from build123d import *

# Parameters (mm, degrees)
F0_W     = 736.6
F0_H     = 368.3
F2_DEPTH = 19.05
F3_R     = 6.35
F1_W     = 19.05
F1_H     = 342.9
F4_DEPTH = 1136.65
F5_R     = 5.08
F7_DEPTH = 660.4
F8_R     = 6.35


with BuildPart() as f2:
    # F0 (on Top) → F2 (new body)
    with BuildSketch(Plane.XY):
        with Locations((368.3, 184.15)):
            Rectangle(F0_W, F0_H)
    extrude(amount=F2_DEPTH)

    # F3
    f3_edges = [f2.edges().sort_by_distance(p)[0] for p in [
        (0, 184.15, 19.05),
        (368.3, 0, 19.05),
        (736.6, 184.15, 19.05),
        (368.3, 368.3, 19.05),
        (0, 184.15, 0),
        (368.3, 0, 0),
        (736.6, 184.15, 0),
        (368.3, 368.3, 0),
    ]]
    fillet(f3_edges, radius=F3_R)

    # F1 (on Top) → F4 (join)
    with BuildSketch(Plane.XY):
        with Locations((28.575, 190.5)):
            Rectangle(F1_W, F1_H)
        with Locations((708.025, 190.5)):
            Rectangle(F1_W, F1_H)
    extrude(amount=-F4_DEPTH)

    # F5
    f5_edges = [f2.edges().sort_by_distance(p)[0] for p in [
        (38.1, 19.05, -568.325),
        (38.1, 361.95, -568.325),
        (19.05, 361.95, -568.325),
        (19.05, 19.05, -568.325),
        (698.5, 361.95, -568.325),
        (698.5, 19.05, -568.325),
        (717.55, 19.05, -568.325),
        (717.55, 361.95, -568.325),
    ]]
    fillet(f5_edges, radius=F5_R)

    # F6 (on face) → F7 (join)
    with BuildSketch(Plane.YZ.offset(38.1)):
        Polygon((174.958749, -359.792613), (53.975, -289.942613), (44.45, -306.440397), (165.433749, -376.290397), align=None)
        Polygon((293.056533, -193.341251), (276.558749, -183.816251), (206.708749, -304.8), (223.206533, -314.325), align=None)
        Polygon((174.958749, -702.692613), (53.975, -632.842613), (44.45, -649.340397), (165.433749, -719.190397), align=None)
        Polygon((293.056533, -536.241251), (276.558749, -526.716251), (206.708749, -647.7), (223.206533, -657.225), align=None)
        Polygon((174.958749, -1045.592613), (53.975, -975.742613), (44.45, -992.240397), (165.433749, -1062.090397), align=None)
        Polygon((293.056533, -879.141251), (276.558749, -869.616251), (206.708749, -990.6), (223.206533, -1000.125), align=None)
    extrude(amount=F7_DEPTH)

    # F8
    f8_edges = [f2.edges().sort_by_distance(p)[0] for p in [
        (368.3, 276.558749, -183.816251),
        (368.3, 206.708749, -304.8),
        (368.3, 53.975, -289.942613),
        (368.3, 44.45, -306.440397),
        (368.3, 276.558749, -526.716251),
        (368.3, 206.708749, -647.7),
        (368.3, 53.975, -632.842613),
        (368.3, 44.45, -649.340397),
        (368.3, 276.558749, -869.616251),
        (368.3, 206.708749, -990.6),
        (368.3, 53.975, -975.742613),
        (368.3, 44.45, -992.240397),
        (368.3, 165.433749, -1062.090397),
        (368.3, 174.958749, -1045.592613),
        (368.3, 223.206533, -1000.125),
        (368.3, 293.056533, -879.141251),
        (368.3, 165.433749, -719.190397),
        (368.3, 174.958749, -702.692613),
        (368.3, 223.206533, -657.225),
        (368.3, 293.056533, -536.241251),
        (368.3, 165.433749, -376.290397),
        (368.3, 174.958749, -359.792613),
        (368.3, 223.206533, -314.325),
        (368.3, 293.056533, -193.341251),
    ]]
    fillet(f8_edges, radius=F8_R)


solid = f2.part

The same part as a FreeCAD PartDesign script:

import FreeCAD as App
import Part
import Sketcher
from FreeCAD import Vector
Q = App.Units.Quantity


def edges_at(feature, points):
    """Names of the edges that pass closest to the given points."""
    edges = feature.Shape.Edges
    near = lambda p: min(range(len(edges)), key=lambda i: edges[i].distToShape(Part.Vertex(*p))[0])
    return sorted({f"Edge{near(p) + 1}" for p in points})


def add_polygon(sketch, points):
    """Adds a closed chain of lines whose ends are joined by coincident constraints."""
    first, n = sketch.GeometryCount, len(points)
    for a, b in zip(points, points[1:] + points[:1]):
        sketch.addGeometry(Part.LineSegment(App.Vector(*a, 0), App.Vector(*b, 0)), False)
    for i in range(n):
        sketch.addConstraint(Sketcher.Constraint("Coincident", first + i, 2, first + (i + 1) % n, 1))

doc = App.newDocument("Part")
params = doc.addObject("Spreadsheet::Sheet", "Params")
for row, (alias, value) in enumerate([
    ("sketch1_width", "29 in"),
    ("sketch1_height", "14.5 in"),
    ("pad1_length", "0.75 in"),
    ("fillet_radius", "0.25 in"),
    ("sketch2_height", "13.5 in"),
    ("sketch2_width", "0.75 in"),
    ("pad2_length", "44.75 in"),
    ("fillet2_radius", "0.2 in"),
    ("sketch3_length", "5.5 in"),
    ("sketch3_length2", "0.75 in"),
    ("pad3_length", "26 in"),
    ("fillet3_radius", "0.25 in"),
], start=1):
    params.set(f"A{row}", alias)
    params.set(f"B{row}", "=" + value)
    params.setAlias(f"B{row}", alias)

body = doc.addObject("PartDesign::Body", "Body")

# Sketch on XY plane
sketch1 = body.newObject("Sketcher::SketchObject", "Sketch")
sketch1.AttachmentSupport = (doc.getObject("XY_Plane"), [""])
sketch1.MapMode = "FlatFace"
add_polygon(sketch1, [(0, 368.3), (0, 0), (736.6, 0), (736.6, 368.3)])  # lines 0-3
sketch1.addConstraint(Sketcher.Constraint("Vertical", 0))
sketch1.addConstraint(Sketcher.Constraint("Horizontal", 1))
sketch1.addConstraint(Sketcher.Constraint("Vertical", 2))
sketch1.addConstraint(Sketcher.Constraint("Horizontal", 3))
sketch1.addConstraint(Sketcher.Constraint("Coincident", 0, 2, -1, 1))
sketch1.addConstraint(Sketcher.Constraint("DistanceX", 1, 1, 1, 2, Q("29 in")))
sketch1.addConstraint(Sketcher.Constraint("DistanceY", 0, 2, 0, 1, Q("14.5 in")))
sketch1.setExpression("Constraints[9]", "Params.sketch1_width")
sketch1.setExpression("Constraints[10]", "Params.sketch1_height")
pad1 = body.newObject("PartDesign::Pad", "Pad")
pad1.Profile = sketch1
pad1.setExpression("Length", "Params.pad1_length")
doc.recompute()

fillet = body.newObject("PartDesign::Fillet", "Fillet")
fillet.Base = (pad1, edges_at(pad1, [
    (0, 184.15, 19.05),
    (368.3, 0, 19.05),
    (736.6, 184.15, 19.05),
    (368.3, 368.3, 19.05),
    (0, 184.15, 0),
    (368.3, 0, 0),
    (736.6, 184.15, 0),
    (368.3, 368.3, 0),
]))
fillet.setExpression("Radius", "Params.fillet_radius")

# Sketch on XY plane
sketch2 = body.newObject("Sketcher::SketchObject", "Sketch001")
sketch2.AttachmentSupport = (doc.getObject("XY_Plane"), [""])
sketch2.MapMode = "FlatFace"
add_polygon(sketch2, [(19.05, 361.95), (19.05, 19.05), (38.1, 19.05), (38.1, 361.95)])  # lines 0-3
add_polygon(sketch2, [(698.5, 361.95), (698.5, 19.05), (717.55, 19.05), (717.55, 361.95)])  # lines 4-7
sketch2.addConstraint(Sketcher.Constraint("Vertical", 0))
sketch2.addConstraint(Sketcher.Constraint("Horizontal", 1))
sketch2.addConstraint(Sketcher.Constraint("Vertical", 2))
sketch2.addConstraint(Sketcher.Constraint("Horizontal", 3))
sketch2.addConstraint(Sketcher.Constraint("Vertical", 4))
sketch2.addConstraint(Sketcher.Constraint("Horizontal", 5))
sketch2.addConstraint(Sketcher.Constraint("Vertical", 6))
sketch2.addConstraint(Sketcher.Constraint("Horizontal", 7))
sketch2.addConstraint(Sketcher.Constraint("Horizontal", 1, 2, 4, 2))
sketch2.addConstraint(Sketcher.Constraint("Horizontal", 3, 2, 6, 2))
sketch2.addConstraint(Sketcher.Constraint("Equal", 3, 5))
sketch2.addConstraint(Sketcher.Constraint("DistanceY", 0, 2, 0, 1, Q("13.5 in")))
sketch2.addConstraint(Sketcher.Constraint("DistanceX", 1, 2, 4, 2, Q("26 in")))
sketch2.addConstraint(Sketcher.Constraint("DistanceX", 1, 1, 1, 2, Q("0.75 in")))
sketch2.addConstraint(Sketcher.Constraint("DistanceX", -1, 1, 1, 2, Q("1.5 in")))
sketch2.addConstraint(Sketcher.Constraint("DistanceY", -1, 1, 0, 2, Q("0.75 in")))
sketch2.setExpression("Constraints[19]", "Params.sketch2_height")
sketch2.setExpression("Constraints[21]", "Params.sketch2_width")
pad2 = body.newObject("PartDesign::Pad", "Pad001")
pad2.Profile = sketch2
pad2.setExpression("Length", "Params.pad2_length")
pad2.Reversed = True
doc.recompute()

fillet2 = body.newObject("PartDesign::Fillet", "Fillet001")
fillet2.Base = (pad2, edges_at(pad2, [
    (38.1, 19.05, -568.325),
    (38.1, 361.95, -568.325),
    (19.05, 361.95, -568.325),
    (19.05, 19.05, -568.325),
    (698.5, 361.95, -568.325),
    (698.5, 19.05, -568.325),
    (717.55, 19.05, -568.325),
    (717.55, 361.95, -568.325),
]))
fillet2.setExpression("Radius", "Params.fillet2_radius")

# Sketch on YZ plane
sketch3 = body.newObject("Sketcher::SketchObject", "Sketch002")
sketch3.AttachmentSupport = (doc.getObject("YZ_Plane"), [""])
sketch3.MapMode = "FlatFace"
sketch3.AttachmentOffset = App.Placement(Vector(0, 0, 1.5 * 25.4), App.Rotation())
add_polygon(sketch3, [(174.958749, -359.792613), (53.975, -289.942613), (44.45, -306.440397), (165.433749, -376.290397)])  # lines 0-3
add_polygon(sketch3, [(293.056533, -193.341251), (276.558749, -183.816251), (206.708749, -304.8), (223.206533, -314.325)])  # lines 4-7
add_polygon(sketch3, [(174.958749, -702.692613), (53.975, -632.842613), (44.45, -649.340397), (165.433749, -719.190397)])  # lines 8-11
add_polygon(sketch3, [(293.056533, -536.241251), (276.558749, -526.716251), (206.708749, -647.7), (223.206533, -657.225)])  # lines 12-15
add_polygon(sketch3, [(174.958749, -1045.592613), (53.975, -975.742613), (44.45, -992.240397), (165.433749, -1062.090397)])  # lines 16-19
add_polygon(sketch3, [(293.056533, -879.141251), (276.558749, -869.616251), (206.708749, -990.6), (223.206533, -1000.125)])  # lines 20-23
sketch3.addConstraint(Sketcher.Constraint("Perpendicular", 0, 1))
sketch3.addConstraint(Sketcher.Constraint("Perpendicular", 1, 2))
sketch3.addConstraint(Sketcher.Constraint("Perpendicular", 2, 3))
sketch3.addConstraint(Sketcher.Constraint("Perpendicular", 3, 4))
sketch3.addConstraint(Sketcher.Constraint("Perpendicular", 4, 5))
sketch3.addConstraint(Sketcher.Constraint("Perpendicular", 5, 6))
sketch3.addConstraint(Sketcher.Constraint("Perpendicular", 6, 7))
sketch3.addConstraint(Sketcher.Constraint("Perpendicular", 7, 8))
sketch3.addConstraint(Sketcher.Constraint("Perpendicular", 8, 9))
sketch3.addConstraint(Sketcher.Constraint("Perpendicular", 9, 10))
sketch3.addConstraint(Sketcher.Constraint("Perpendicular", 10, 11))
sketch3.addConstraint(Sketcher.Constraint("Perpendicular", 11, 12))
sketch3.addConstraint(Sketcher.Constraint("Perpendicular", 12, 13))
sketch3.addConstraint(Sketcher.Constraint("Perpendicular", 13, 14))
sketch3.addConstraint(Sketcher.Constraint("Perpendicular", 14, 15))
sketch3.addConstraint(Sketcher.Constraint("Perpendicular", 15, 16))
sketch3.addConstraint(Sketcher.Constraint("Perpendicular", 16, 17))
sketch3.addConstraint(Sketcher.Constraint("Perpendicular", 17, 18))
sketch3.addConstraint(Sketcher.Constraint("Perpendicular", 18, 19))
sketch3.addConstraint(Sketcher.Constraint("Perpendicular", 19, 20))
sketch3.addConstraint(Sketcher.Constraint("Perpendicular", 20, 21))
sketch3.addConstraint(Sketcher.Constraint("Perpendicular", 21, 22))
sketch3.addConstraint(Sketcher.Constraint("Perpendicular", 22, 23))
sketch3.addConstraint(Sketcher.Constraint("Vertical", 0, 2, 8, 2))
sketch3.addConstraint(Sketcher.Constraint("Vertical", 1, 2, 9, 2))
sketch3.addConstraint(Sketcher.Constraint("Vertical", 2, 2, 10, 2))
sketch3.addConstraint(Sketcher.Constraint("Vertical", 4, 2, 12, 2))
sketch3.addConstraint(Sketcher.Constraint("Vertical", 5, 2, 13, 2))
sketch3.addConstraint(Sketcher.Constraint("Vertical", 6, 2, 14, 2))
sketch3.addConstraint(Sketcher.Constraint("Vertical", 8, 2, 16, 2))
sketch3.addConstraint(Sketcher.Constraint("Vertical", 9, 2, 17, 2))
sketch3.addConstraint(Sketcher.Constraint("Vertical", 10, 2, 18, 2))
sketch3.addConstraint(Sketcher.Constraint("Vertical", 12, 2, 20, 2))
sketch3.addConstraint(Sketcher.Constraint("Vertical", 13, 2, 21, 2))
sketch3.addConstraint(Sketcher.Constraint("Vertical", 14, 2, 22, 2))
sketch3.addConstraint(Sketcher.Constraint("Equal", 3, 4))
sketch3.addConstraint(Sketcher.Constraint("Equal", 2, 5))
sketch3.addConstraint(Sketcher.Constraint("DistanceY", 5, 2, -1, 1, Q("12 in")))
sketch3.addConstraint(Sketcher.Constraint("DistanceY", 21, 2, -1, 1, Q("39 in")))
sketch3.addConstraint(Sketcher.Constraint("Angle", 0, Q("150 deg")))
sketch3.addConstraint(Sketcher.Constraint("DistanceX", 3, 2, 4, 2, Q("4 in")))
sketch3.addConstraint(Sketcher.Constraint("Distance", 0, Q("5.5 in")))
sketch3.addConstraint(Sketcher.Constraint("DistanceY", 13, 2, -1, 1, Q("25.5 in")))
sketch3.addConstraint(Sketcher.Constraint("DistanceY", 8, 2, 0, 2, Q("13.5 in")))
sketch3.addConstraint(Sketcher.Constraint("DistanceY", 16, 2, 8, 2, Q("13.5 in")))
sketch3.addConstraint(Sketcher.Constraint("Distance", 1, Q("0.75 in")))
sketch3.addConstraint(Sketcher.Constraint("DistanceX", -1, 1, 1, 2, Q("1.75 in")))
sketch3.addConstraint(Sketcher.Constraint("DistanceY", 0, 2, 4, 2, Q("106.126362 mm")))
sketch3.setExpression("Constraints[65]", "Params.sketch3_length")
sketch3.setExpression("Constraints[69]", "Params.sketch3_length2")
pad3 = body.newObject("PartDesign::Pad", "Pad002")
pad3.Profile = sketch3
pad3.setExpression("Length", "Params.pad3_length")
doc.recompute()

fillet3 = body.newObject("PartDesign::Fillet", "Fillet002")
fillet3.Base = (pad3, edges_at(pad3, [
    (368.3, 276.559, -183.816),
    (368.3, 206.709, -304.8),
    (368.3, 53.975, -289.943),
    (368.3, 44.45, -306.44),
    (368.3, 276.559, -526.716),
    (368.3, 206.709, -647.7),
    (368.3, 53.975, -632.843),
    (368.3, 44.45, -649.34),
    (368.3, 276.559, -869.616),
    (368.3, 206.709, -990.6),
    (368.3, 53.975, -975.743),
    (368.3, 44.45, -992.24),
    (368.3, 165.434, -1062.09),
    (368.3, 174.959, -1045.593),
    (368.3, 223.207, -1000.125),
    (368.3, 293.057, -879.141),
    (368.3, 165.434, -719.19),
    (368.3, 174.959, -702.693),
    (368.3, 223.207, -657.225),
    (368.3, 293.057, -536.241),
    (368.3, 165.434, -376.29),
    (368.3, 174.959, -359.793),
    (368.3, 223.207, -314.325),
    (368.3, 293.057, -193.341),
]))
fillet3.setExpression("Radius", "Params.fillet3_radius")

doc.recompute()
